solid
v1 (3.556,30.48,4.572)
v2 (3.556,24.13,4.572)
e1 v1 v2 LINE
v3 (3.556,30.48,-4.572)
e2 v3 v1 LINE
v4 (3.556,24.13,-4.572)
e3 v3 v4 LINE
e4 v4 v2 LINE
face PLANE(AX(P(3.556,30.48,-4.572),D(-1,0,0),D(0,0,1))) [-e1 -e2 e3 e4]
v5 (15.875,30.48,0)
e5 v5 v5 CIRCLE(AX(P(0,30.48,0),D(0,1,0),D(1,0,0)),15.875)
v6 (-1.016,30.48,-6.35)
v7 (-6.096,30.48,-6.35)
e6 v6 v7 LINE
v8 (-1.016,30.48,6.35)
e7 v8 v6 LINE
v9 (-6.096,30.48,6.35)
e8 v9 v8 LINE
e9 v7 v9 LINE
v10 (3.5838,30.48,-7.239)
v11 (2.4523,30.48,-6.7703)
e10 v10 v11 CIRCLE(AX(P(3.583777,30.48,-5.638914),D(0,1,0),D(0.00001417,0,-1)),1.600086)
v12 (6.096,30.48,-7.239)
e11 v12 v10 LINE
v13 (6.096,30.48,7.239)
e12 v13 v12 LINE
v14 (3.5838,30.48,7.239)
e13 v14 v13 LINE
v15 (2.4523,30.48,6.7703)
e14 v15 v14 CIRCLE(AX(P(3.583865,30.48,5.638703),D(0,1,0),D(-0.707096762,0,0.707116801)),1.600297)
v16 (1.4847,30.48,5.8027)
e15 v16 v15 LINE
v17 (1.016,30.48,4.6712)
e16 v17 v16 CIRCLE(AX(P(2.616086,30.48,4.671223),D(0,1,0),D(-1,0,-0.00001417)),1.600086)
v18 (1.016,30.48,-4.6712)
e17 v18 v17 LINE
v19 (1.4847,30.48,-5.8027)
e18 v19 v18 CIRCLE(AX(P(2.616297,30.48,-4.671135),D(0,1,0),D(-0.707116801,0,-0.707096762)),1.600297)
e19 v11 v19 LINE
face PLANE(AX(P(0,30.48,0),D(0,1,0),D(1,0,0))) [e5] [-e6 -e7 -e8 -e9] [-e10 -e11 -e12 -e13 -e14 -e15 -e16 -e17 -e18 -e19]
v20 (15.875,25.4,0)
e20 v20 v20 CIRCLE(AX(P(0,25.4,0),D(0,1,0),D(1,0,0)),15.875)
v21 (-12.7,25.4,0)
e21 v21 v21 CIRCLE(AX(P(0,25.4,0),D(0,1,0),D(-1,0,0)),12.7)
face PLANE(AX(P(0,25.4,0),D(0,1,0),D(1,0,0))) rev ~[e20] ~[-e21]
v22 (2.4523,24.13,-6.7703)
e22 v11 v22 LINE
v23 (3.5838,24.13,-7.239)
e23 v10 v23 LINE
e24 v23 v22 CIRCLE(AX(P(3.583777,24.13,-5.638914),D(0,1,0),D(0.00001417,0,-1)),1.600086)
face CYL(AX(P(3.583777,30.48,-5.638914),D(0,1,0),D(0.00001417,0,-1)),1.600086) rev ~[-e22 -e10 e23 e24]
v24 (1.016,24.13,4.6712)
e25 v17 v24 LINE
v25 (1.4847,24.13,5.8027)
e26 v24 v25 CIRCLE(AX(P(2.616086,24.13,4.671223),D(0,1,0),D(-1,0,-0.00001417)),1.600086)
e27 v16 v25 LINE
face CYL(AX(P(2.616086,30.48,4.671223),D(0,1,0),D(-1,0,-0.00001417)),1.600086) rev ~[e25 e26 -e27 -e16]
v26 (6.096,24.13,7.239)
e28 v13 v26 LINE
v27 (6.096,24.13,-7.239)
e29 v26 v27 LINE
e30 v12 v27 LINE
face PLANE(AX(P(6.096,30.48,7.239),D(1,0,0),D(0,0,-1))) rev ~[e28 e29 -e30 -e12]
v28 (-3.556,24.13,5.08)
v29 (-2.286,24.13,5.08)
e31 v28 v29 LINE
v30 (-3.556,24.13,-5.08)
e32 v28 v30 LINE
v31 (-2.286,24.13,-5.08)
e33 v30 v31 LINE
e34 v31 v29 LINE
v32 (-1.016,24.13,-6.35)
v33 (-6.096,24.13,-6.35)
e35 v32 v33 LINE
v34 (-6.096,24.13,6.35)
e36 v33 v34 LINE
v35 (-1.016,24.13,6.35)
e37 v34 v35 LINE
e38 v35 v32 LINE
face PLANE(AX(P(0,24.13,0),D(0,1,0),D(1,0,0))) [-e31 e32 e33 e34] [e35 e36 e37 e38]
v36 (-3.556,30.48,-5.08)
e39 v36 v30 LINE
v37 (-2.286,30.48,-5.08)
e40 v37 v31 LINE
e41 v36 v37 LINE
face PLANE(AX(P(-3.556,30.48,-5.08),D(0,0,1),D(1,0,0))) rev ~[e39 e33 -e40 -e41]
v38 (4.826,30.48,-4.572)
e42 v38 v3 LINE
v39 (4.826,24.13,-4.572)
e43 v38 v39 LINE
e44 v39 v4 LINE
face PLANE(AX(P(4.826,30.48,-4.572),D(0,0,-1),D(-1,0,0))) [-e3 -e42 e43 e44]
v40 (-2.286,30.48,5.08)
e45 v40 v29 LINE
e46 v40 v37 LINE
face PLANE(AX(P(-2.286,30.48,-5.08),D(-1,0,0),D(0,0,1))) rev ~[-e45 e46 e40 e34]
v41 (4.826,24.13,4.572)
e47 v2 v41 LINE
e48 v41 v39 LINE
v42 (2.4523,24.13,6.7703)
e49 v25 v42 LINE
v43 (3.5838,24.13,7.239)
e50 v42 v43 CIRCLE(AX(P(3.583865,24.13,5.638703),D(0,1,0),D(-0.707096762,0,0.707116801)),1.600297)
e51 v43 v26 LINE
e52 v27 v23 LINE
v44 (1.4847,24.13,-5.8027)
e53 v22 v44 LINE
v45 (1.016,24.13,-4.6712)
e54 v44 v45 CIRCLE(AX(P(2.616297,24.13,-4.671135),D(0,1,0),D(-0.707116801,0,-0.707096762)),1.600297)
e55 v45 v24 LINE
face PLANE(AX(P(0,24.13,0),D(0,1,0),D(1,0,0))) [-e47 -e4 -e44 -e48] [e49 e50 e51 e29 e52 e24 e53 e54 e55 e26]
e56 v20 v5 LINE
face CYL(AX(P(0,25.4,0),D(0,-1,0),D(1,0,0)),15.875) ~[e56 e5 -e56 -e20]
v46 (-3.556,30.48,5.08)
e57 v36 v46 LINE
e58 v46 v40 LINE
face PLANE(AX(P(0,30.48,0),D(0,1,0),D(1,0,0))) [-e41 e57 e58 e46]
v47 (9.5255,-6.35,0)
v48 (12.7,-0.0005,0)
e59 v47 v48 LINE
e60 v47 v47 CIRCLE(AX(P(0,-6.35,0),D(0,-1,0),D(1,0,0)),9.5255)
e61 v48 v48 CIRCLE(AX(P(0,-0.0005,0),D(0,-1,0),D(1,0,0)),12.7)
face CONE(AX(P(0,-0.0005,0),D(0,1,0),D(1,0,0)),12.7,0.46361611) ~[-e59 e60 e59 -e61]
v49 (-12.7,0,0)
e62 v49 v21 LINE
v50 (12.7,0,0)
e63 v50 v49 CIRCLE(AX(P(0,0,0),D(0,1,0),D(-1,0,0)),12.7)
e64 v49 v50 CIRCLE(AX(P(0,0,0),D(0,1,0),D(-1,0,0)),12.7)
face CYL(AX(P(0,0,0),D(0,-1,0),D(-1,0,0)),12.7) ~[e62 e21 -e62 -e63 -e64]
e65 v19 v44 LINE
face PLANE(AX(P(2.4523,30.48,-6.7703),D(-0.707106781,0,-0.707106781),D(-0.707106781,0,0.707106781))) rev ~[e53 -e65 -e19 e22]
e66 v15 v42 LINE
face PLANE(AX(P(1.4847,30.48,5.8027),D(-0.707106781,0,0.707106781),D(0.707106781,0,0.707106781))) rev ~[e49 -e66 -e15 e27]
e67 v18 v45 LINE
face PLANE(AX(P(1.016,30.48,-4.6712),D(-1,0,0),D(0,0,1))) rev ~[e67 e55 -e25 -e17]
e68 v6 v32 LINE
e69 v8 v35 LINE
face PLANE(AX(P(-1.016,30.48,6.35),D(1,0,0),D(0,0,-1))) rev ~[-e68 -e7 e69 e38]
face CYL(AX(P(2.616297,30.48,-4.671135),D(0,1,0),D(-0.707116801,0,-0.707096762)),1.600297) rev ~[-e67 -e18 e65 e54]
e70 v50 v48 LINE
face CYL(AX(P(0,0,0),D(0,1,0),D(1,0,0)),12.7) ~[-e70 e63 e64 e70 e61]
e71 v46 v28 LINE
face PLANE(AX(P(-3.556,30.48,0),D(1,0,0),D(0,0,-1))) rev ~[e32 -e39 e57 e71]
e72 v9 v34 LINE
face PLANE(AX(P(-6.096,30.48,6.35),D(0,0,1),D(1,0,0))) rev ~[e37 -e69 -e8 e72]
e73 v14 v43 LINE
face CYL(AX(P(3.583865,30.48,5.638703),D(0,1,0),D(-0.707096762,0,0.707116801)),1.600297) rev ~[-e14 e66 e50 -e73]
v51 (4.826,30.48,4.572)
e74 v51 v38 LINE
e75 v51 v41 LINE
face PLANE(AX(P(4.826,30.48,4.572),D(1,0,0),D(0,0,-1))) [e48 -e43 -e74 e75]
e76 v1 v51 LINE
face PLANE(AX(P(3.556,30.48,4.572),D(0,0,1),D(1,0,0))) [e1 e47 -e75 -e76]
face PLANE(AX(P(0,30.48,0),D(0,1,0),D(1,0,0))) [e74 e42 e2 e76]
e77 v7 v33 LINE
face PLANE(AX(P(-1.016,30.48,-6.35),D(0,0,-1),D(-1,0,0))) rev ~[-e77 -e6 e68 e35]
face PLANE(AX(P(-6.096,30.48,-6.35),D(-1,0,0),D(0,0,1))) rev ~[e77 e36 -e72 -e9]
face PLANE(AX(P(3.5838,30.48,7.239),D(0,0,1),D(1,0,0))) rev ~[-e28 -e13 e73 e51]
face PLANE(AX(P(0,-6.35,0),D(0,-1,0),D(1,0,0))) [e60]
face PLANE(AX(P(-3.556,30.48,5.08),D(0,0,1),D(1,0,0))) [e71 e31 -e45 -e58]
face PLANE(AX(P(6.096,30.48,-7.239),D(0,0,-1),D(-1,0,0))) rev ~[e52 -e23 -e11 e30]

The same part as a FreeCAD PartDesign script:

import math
import FreeCAD as App
import Part
import Sketcher
Q = App.Units.Quantity


def edges_at(feature, points):
    """Names of the edges that pass closest to the given points."""
    edges = feature.Shape.Edges
    near = lambda p: min(range(len(edges)), key=lambda i: edges[i].distToShape(Part.Vertex(*p))[0])
    return sorted({f"Edge{near(p) + 1}" for p in points})


def add_polygon(sketch, points):
    """Adds a closed chain of lines whose ends are joined by coincident constraints."""
    first, n = sketch.GeometryCount, len(points)
    for a, b in zip(points, points[1:] + points[:1]):
        sketch.addGeometry(Part.LineSegment(App.Vector(*a, 0), App.Vector(*b, 0)), False)
    for i in range(n):
        sketch.addConstraint(Sketcher.Constraint("Coincident", first + i, 2, first + (i + 1) % n, 1))

doc = App.newDocument("Part")
body = doc.addObject("PartDesign::Body", "Body")

sketch1 = doc.addObject("Sketcher::SketchObject", "Sketch")
body.addObject(sketch1)
sketch1.AttachmentSupport = (doc.XZ_Plane, [""])
sketch1.MapMode = "FlatFace"
sketch1.addGeometry(Part.Circle(App.Vector(0, 0, 0), App.Vector(0, 0, 1), 12.7), False)
sketch1.addConstraint([
    Sketcher.Constraint("Coincident", 0, 3, -1, 1),
    Sketcher.Constraint("Diameter", 0, Q("1 in")),
])
pad1 = doc.addObject("PartDesign::Pad", "Pad")
body.addObject(pad1)
pad1.Profile = sketch1
pad1.Length = Q("1 in")
pad1.Reversed = True

sketch2 = doc.addObject("Sketcher::SketchObject", "Sketch001")
body.addObject(sketch2)
sketch2.AttachmentSupport = (doc.XZ_Plane, [""])
sketch2.MapMode = "FlatFace"
sketch2.AttachmentOffset = App.Placement(App.Vector(0, 0, -1 * 25.4), App.Rotation())
sketch2.addGeometry(Part.Circle(App.Vector(0, 0, 0), App.Vector(0, 0, 1), 15.875), False)
sketch2.addConstraint([
    Sketcher.Constraint("Coincident", 0, 3, -1, 1),
    Sketcher.Constraint("Diameter", 0, Q("1.25 in")),
])
pad2 = doc.addObject("PartDesign::Pad", "Pad001")
body.addObject(pad2)
pad2.Profile = sketch2
pad2.Length = Q("0.2 in")
pad2.Reversed = True

sketch3 = doc.addObject("Sketcher::SketchObject", "Sketch002")
body.addObject(sketch3)
sketch3.AttachmentSupport = (doc.XZ_Plane, [""])
sketch3.MapMode = "FlatFace"
sketch3.addGeometry(Part.Circle(App.Vector(0, 0, 0), App.Vector(0, 0, 1), 12.7), False)
sketch3.addConstraint([
    Sketcher.Constraint("Coincident", 0, 3, -1, 1),
    Sketcher.Constraint("Diameter", 0, Q("1 in")),
])
pad3 = doc.addObject("PartDesign::Pad", "Pad002")
body.addObject(pad3)
pad3.Profile = sketch3
pad3.Length = Q("0.25 in")
doc.recompute()

chamfer = doc.addObject("PartDesign::Chamfer", "Chamfer")
body.addObject(chamfer)
chamfer.Base = (pad3, edges_at(pad3, [(-12.7, -6.35, 0)]))
chamfer.ChamferType = "Two distances"
chamfer.Size = Q("0.125 in")
chamfer.Size2 = Q("0.25 in")
chamfer.FlipDirection = True

sketch4 = doc.addObject("Sketcher::SketchObject", "Sketch003")
body.addObject(sketch4)
sketch4.AttachmentSupport = (doc.XZ_Plane, [""])
sketch4.MapMode = "FlatFace"
sketch4.AttachmentOffset = App.Placement(App.Vector(0, 0, -1.2 * 25.4), App.Rotation())
add_polygon(sketch4, [(-1.016, 6.35), (-1.016, -6.35), (-6.096, -6.35), (-6.096, 6.35)])
add_polygon(sketch4, [(-2.286, -5.08), (-2.286, 5.08), (-3.556, 5.08), (-3.556, -5.08)])
sketch4.addGeometry(Part.LineSegment(App.Vector(6.096, 7.239, 0), App.Vector(6.096, -7.239, 0)), False)
sketch4.addGeometry(Part.LineSegment(App.Vector(6.096, -7.239, 0), App.Vector(3.5838, -7.239, 0)), False)
sketch4.addGeometry(Part.ArcOfCircle(Part.Circle(App.Vector(3.5838, -5.6388, 0), App.Vector(0, 0, 1), 1.6002), math.radians(-135), math.radians(-90)), False)
sketch4.addGeometry(Part.LineSegment(App.Vector(2.4523, -6.7703, 0), App.Vector(1.4847, -5.8027, 0)), False)
sketch4.addGeometry(Part.ArcOfCircle(Part.Circle(App.Vector(2.6162, -4.6712, 0), App.Vector(0, 0, 1), 1.600183), math.radians(180), math.radians(225)), False)
sketch4.addGeometry(Part.LineSegment(App.Vector(1.016, -4.6712, 0), App.Vector(1.016, 4.6712, 0)), False)
sketch4.addGeometry(Part.ArcOfCircle(Part.Circle(App.Vector(2.6162, 4.6712, 0), App.Vector(0, 0, 1), 1.6002), math.radians(135), math.radians(180)), False)
sketch4.addGeometry(Part.LineSegment(App.Vector(1.4847, 5.8027, 0), App.Vector(2.4523, 6.7703, 0)), False)
sketch4.addGeometry(Part.ArcOfCircle(Part.Circle(App.Vector(3.5838, 5.6388, 0), App.Vector(0, 0, 1), 1.600183), math.radians(90), math.radians(135)), False)
sketch4.addGeometry(Part.LineSegment(App.Vector(3.5838, 7.239, 0), App.Vector(6.096, 7.239, 0)), False)
add_polygon(sketch4, [(3.556, -4.572), (4.826, -4.572), (4.826, 4.572), (3.556, 4.572)])
sketch4.addConstraint([
    Sketcher.Constraint("Coincident", 8, 2, 9, 1),
    Sketcher.Constraint("Tangent", 9, 2, 10, 2),
    Sketcher.Constraint("Tangent", 10, 1, 11, 1),
    Sketcher.Constraint("Tangent", 11, 2, 12, 2),
    Sketcher.Constraint("Tangent", 12, 1, 13, 1),
    Sketcher.Constraint("Tangent", 13, 2, 14, 2),
    Sketcher.Constraint("Tangent", 14, 1, 15, 1),
    Sketcher.Constraint("Tangent", 15, 2, 16, 2),
    Sketcher.Constraint("Tangent", 16, 1, 17, 1),
    Sketcher.Constraint("Coincident", 17, 2, 8, 1),
    Sketcher.Constraint("Vertical", 0),
    Sketcher.Constraint("Horizontal", 1),
    Sketcher.Constraint("Vertical", 2),
    Sketcher.Constraint("Horizontal", 3),
    Sketcher.Constraint("Vertical", 4),
    Sketcher.Constraint("Horizontal", 5),
    Sketcher.Constraint("Vertical", 6),
    Sketcher.Constraint("Horizontal", 7),
    Sketcher.Constraint("Vertical", 8),
    Sketcher.Constraint("Horizontal", 9),
    Sketcher.Constraint("Vertical", 13),
    Sketcher.Constraint("Horizontal", 17),
    Sketcher.Constraint("Horizontal", 18),
    Sketcher.Constraint("Vertical", 19),
    Sketcher.Constraint("Horizontal", 20),
    Sketcher.Constraint("Vertical", 21),
    Sketcher.Constraint("Equal", 10, 12),
    Sketcher.Constraint("Equal", 12, 14),
    Sketcher.Constraint("Equal", 14, 16),
    Sketcher.Constraint("Symmetric", 10, 3, 16, 3, -1),
    Sketcher.Constraint("Perpendicular", 11, 15),
    Sketcher.Constraint("Vertical", 11, 2, 14, 1),
    Sketcher.Constraint("Equal", 7, 18),
    Sketcher.Constraint("DistanceX", 1, 2, 1, 1, Q("0.2 in")),
    Sketcher.Constraint("DistanceY", 0, 2, 0, 1, Q("0.5 in")),
    Sketcher.Constraint("Radius", 10, Q("0.063 in")),
    Sketcher.Constraint("DistanceX", 5, 2, 5, 1, Q("0.05 in")),
    Sketcher.Constraint("DistanceY", 8, 2, 8, 1, Q("0.57 in")),
    Sketcher.Constraint("DistanceY", -1, 1, 4, 2, Q("0.2 in")),
    Sketcher.Constraint("DistanceY", 6, 2, -1, 1, Q("0.2 in")),
    Sketcher.Constraint("DistanceX", 2, 2, 5, 2, Q("0.1 in")),
    Sketcher.Constraint("DistanceX", 0, 2, -1, 1, Q("0.04 in")),
    Sketcher.Constraint("DistanceY", 0, 2, -1, 1, Q("0.25 in")),
    Sketcher.Constraint("DistanceX", -1, 1, 12, 1, Q("0.04 in")),
    Sketcher.Constraint("DistanceY", 18, 2, -1, 1, Q("0.18 in")),
    Sketcher.Constraint("DistanceY", -1, 1, 19, 2, Q("0.18 in")),
    Sketcher.Constraint("DistanceX", 18, 2, 8, 2, Q("0.05 in")),
    Sketcher.Constraint("DistanceX", -1, 1, 8, 2, Q("0.24 in")),
    Sketcher.Constraint("DistanceX", 9, 2, 9, 1, Q("0.0989 in")),
])
pocket1 = doc.addObject("PartDesign::Pocket", "Pocket")
body.addObject(pocket1)
pocket1.Profile = sketch4
pocket1.Length = Q("0.25 in")
pocket1.Reversed = True

doc.recompute()
